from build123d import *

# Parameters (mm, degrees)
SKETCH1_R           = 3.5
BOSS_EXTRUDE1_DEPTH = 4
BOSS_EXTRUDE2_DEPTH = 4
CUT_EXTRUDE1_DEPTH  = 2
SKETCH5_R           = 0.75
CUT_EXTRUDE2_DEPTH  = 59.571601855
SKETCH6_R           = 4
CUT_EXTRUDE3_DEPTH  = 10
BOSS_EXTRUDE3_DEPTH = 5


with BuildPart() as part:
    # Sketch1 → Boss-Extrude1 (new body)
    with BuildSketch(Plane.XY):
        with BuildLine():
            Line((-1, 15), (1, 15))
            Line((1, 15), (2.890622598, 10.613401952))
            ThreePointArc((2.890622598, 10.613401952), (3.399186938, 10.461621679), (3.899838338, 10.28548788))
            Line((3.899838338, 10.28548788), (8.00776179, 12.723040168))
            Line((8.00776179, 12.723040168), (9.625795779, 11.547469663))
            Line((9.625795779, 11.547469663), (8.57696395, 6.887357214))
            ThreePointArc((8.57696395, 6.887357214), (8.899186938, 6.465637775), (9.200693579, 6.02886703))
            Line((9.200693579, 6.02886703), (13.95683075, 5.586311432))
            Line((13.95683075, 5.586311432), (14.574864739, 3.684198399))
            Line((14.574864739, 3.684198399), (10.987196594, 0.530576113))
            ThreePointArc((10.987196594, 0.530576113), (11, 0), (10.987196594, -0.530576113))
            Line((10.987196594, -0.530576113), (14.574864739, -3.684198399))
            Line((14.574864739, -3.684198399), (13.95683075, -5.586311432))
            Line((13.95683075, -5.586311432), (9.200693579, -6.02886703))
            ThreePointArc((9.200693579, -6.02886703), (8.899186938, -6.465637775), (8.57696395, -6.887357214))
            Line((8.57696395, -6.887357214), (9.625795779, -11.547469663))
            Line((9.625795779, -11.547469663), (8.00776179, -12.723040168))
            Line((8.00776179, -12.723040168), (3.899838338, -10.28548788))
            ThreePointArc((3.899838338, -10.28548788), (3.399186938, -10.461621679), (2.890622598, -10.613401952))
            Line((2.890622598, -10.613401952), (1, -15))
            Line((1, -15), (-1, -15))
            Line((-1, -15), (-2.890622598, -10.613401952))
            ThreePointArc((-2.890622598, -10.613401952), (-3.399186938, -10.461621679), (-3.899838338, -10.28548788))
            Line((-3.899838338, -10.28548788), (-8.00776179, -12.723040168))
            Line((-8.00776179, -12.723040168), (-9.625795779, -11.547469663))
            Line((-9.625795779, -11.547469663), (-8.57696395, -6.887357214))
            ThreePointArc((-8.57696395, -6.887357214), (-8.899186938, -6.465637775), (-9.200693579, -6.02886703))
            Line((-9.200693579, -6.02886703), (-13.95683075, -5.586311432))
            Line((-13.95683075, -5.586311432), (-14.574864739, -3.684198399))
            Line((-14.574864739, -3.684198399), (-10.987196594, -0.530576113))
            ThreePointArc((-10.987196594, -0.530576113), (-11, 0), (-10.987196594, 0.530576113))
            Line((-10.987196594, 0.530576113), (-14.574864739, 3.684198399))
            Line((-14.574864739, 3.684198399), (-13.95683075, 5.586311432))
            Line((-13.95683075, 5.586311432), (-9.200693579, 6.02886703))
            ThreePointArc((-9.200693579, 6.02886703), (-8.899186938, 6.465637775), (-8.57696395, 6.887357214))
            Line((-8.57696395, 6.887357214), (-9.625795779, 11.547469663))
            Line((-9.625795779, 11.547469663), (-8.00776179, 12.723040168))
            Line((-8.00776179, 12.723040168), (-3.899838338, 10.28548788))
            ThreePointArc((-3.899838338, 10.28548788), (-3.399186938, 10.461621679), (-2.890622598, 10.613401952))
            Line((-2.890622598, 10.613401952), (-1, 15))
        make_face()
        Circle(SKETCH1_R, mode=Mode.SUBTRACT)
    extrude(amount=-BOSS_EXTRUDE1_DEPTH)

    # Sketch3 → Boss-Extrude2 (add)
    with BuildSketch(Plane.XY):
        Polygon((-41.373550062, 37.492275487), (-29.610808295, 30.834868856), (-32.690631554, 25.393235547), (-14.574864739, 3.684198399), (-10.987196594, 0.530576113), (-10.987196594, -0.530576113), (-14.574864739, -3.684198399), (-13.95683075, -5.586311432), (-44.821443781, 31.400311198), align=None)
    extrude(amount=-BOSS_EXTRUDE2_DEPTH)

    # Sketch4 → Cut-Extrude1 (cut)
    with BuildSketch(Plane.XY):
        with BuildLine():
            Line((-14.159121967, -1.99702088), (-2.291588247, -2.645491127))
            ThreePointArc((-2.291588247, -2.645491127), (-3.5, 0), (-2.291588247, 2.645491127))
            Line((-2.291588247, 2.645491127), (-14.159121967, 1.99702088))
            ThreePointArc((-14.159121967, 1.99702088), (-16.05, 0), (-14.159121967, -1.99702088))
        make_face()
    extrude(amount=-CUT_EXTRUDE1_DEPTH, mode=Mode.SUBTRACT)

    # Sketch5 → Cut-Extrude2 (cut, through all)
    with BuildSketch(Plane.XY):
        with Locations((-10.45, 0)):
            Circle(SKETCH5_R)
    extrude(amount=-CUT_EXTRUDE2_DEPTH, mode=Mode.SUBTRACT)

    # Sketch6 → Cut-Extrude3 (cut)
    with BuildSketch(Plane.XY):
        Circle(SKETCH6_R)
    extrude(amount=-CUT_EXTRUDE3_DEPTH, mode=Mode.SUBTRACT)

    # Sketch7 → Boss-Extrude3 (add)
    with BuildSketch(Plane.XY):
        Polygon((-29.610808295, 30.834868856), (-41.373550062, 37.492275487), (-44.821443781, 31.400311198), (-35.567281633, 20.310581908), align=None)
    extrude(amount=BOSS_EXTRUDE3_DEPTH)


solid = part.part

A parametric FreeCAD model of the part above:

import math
import FreeCAD as App
import Part
import Sketcher
from FreeCAD import Vector
Q = App.Units.Quantity


def add_polygon(sketch, points):
    """Adds a closed chain of lines whose ends are joined by coincident constraints."""
    first, n = sketch.GeometryCount, len(points)
    for a, b in zip(points, points[1:] + points[:1]):
        sketch.addGeometry(Part.LineSegment(App.Vector(*a, 0), App.Vector(*b, 0)), False)
    for i in range(n):
        sketch.addConstraint(Sketcher.Constraint("Coincident", first + i, 2, first + (i + 1) % n, 1))

doc = App.newDocument("Part")
params = doc.addObject("Spreadsheet::Sheet", "Params")
for row, (alias, value) in enumerate([
    ("sketch1_diameter", "7 mm"),
    ("sketch1_radius", "11 mm"),
    ("sketch1_width", "2 mm"),
    ("sketch1_length", "2 mm"),
    ("pad1_length", "4 mm"),
    ("sketch2_length", "7 mm"),
    ("sketch2_length2", "2 mm"),
    ("pad2_length", "4 mm"),
    ("sketch3_radius", "2 mm"),
    ("sketch3_radius2", "3.5 mm"),
    ("pocket1_length", "2 mm"),
    ("sketch4_diameter", "1.5 mm"),
    ("sketch5_diameter", "8 mm"),
    ("pocket3_length", "10 mm"),
    ("sketch6_length", "7 mm"),
    ("pad3_length", "5 mm"),
], start=1):
    params.set(f"A{row}", alias)
    params.set(f"B{row}", "=" + value)
    params.setAlias(f"B{row}", alias)

body = doc.addObject("PartDesign::Body", "Body")

# Sketch on XY plane
sketch1 = doc.addObject("Sketcher::SketchObject", "Sketch")
body.addObject(sketch1)
sketch1.AttachmentSupport = (doc.XY_Plane, [""])
sketch1.MapMode = "FlatFace"
sketch1.addGeometry([
    Part.LineSegment(Vector(1, 15, 0), Vector(-1, 15, 0)),  # 0
    Part.LineSegment(Vector(-1, 15, 0), Vector(-2.890623, 10.613402, 0)),  # 1
    Part.ArcOfCircle(Part.Circle(Vector(0, 0, 0), Vector(0, 0, 1), 11), math.radians(105.235312), math.radians(110.764688)),  # 2
    Part.LineSegment(Vector(-3.899838, 10.285488, 0), Vector(-8.007762, 12.72304, 0)),  # 3
    Part.LineSegment(Vector(-8.007762, 12.72304, 0), Vector(-9.625796, 11.54747, 0)),  # 4
    Part.LineSegment(Vector(-9.625796, 11.54747, 0), Vector(-8.576964, 6.887357, 0)),  # 5
    Part.ArcOfCircle(Part.Circle(Vector(0, 0, 0), Vector(0, 0, 1), 11), math.radians(141.235312), math.radians(146.764688)),  # 6
    Part.LineSegment(Vector(-9.200694, 6.028867, 0), Vector(-13.956831, 5.586311, 0)),  # 7
    Part.LineSegment(Vector(-13.956831, 5.586311, 0), Vector(-14.574865, 3.684198, 0)),  # 8
    Part.LineSegment(Vector(-14.574865, 3.684198, 0), Vector(-10.987197, 0.530576, 0)),  # 9
    Part.ArcOfCircle(Part.Circle(Vector(0, 0, 0), Vector(0, 0, 1), 11), math.radians(177.235312), math.radians(182.764688)),  # 10
    Part.LineSegment(Vector(-10.987197, -0.530576, 0), Vector(-14.574865, -3.684198, 0)),  # 11
    Part.LineSegment(Vector(-14.574865, -3.684198, 0), Vector(-13.956831, -5.586311, 0)),  # 12
    Part.LineSegment(Vector(-13.956831, -5.586311, 0), Vector(-9.200694, -6.028867, 0)),  # 13
    Part.ArcOfCircle(Part.Circle(Vector(0, 0, 0), Vector(0, 0, 1), 11), math.radians(-146.764688), math.radians(-141.235312)),  # 14
    Part.LineSegment(Vector(-8.576964, -6.887357, 0), Vector(-9.625796, -11.54747, 0)),  # 15
    Part.LineSegment(Vector(-9.625796, -11.54747, 0), Vector(-8.007762, -12.72304, 0)),  # 16
    Part.LineSegment(Vector(-8.007762, -12.72304, 0), Vector(-3.899838, -10.285488, 0)),  # 17
    Part.ArcOfCircle(Part.Circle(Vector(0, 0, 0), Vector(0, 0, 1), 11), math.radians(-110.764688), math.radians(-105.235312)),  # 18
    Part.LineSegment(Vector(-2.890623, -10.613402, 0), Vector(-1, -15, 0)),  # 19
    Part.LineSegment(Vector(-1, -15, 0), Vector(1, -15, 0)),  # 20
    Part.LineSegment(Vector(1, -15, 0), Vector(2.890623, -10.613402, 0)),  # 21
    Part.ArcOfCircle(Part.Circle(Vector(0, 0, 0), Vector(0, 0, 1), 11), math.radians(-74.764688), math.radians(-69.235312)),  # 22
    Part.LineSegment(Vector(3.899838, -10.285488, 0), Vector(8.007762, -12.72304, 0)),  # 23
    Part.LineSegment(Vector(8.007762, -12.72304, 0), Vector(9.625796, -11.54747, 0)),  # 24
    Part.LineSegment(Vector(9.625796, -11.54747, 0), Vector(8.576964, -6.887357, 0)),  # 25
    Part.ArcOfCircle(Part.Circle(Vector(0, 0, 0), Vector(0, 0, 1), 11), math.radians(-38.764688), math.radians(-33.235312)),  # 26
    Part.LineSegment(Vector(9.200694, -6.028867, 0), Vector(13.956831, -5.586311, 0)),  # 27
    Part.LineSegment(Vector(13.956831, -5.586311, 0), Vector(14.574865, -3.684198, 0)),  # 28
    Part.LineSegment(Vector(14.574865, -3.684198, 0), Vector(10.987197, -0.530576, 0)),  # 29
    Part.ArcOfCircle(Part.Circle(Vector(0, 0, 0), Vector(0, 0, 1), 11), math.radians(-2.764688), math.radians(2.764688)),  # 30
    Part.LineSegment(Vector(10.987197, 0.530576, 0), Vector(14.574865, 3.684198, 0)),  # 31
    Part.LineSegment(Vector(14.574865, 3.684198, 0), Vector(13.956831, 5.586311, 0)),  # 32
    Part.LineSegment(Vector(13.956831, 5.586311, 0), Vector(9.200694, 6.028867, 0)),  # 33
    Part.ArcOfCircle(Part.Circle(Vector(0, 0, 0), Vector(0, 0, 1), 11), math.radians(33.235312), math.radians(38.764688)),  # 34
    Part.LineSegment(Vector(8.576964, 6.887357, 0), Vector(9.625796, 11.54747, 0)),  # 35
    Part.LineSegment(Vector(9.625796, 11.54747, 0), Vector(8.007762, 12.72304, 0)),  # 36
    Part.LineSegment(Vector(8.007762, 12.72304, 0), Vector(3.899838, 10.285488, 0)),  # 37
    Part.ArcOfCircle(Part.Circle(Vector(0, 0, 0), Vector(0, 0, 1), 11), math.radians(69.235312), math.radians(74.764688)),  # 38
    Part.LineSegment(Vector(2.890623, 10.613402, 0), Vector(1, 15, 0)),  # 39
    Part.Circle(Vector(0, 0, 0), Vector(0, 0, 1), 3.5),  # 40
], False)
sketch1.addConstraint([
    Sketcher.Constraint("Coincident", 0, 2, 1, 1),
    Sketcher.Constraint("Coincident", 1, 2, 2, 1),
    Sketcher.Constraint("Coincident", 2, 2, 3, 1),
    Sketcher.Constraint("Coincident", 3, 2, 4, 1),
    Sketcher.Constraint("Coincident", 4, 2, 5, 1),
    Sketcher.Constraint("Coincident", 5, 2, 6, 1),
    Sketcher.Constraint("Coincident", 6, 2, 7, 1),
    Sketcher.Constraint("Coincident", 7, 2, 8, 1),
    Sketcher.Constraint("Coincident", 8, 2, 9, 1),
    Sketcher.Constraint("Coincident", 9, 2, 10, 1),
    Sketcher.Constraint("Coincident", 10, 2, 11, 1),
    Sketcher.Constraint("Coincident", 11, 2, 12, 1),
    Sketcher.Constraint("Coincident", 12, 2, 13, 1),
    Sketcher.Constraint("Coincident", 13, 2, 14, 1),
    Sketcher.Constraint("Coincident", 14, 2, 15, 1),
    Sketcher.Constraint("Coincident", 15, 2, 16, 1),
    Sketcher.Constraint("Coincident", 16, 2, 17, 1),
    Sketcher.Constraint("Coincident", 17, 2, 18, 1),
    Sketcher.Constraint("Coincident", 18, 2, 19, 1),
    Sketcher.Constraint("Coincident", 19, 2, 20, 1),
    Sketcher.Constraint("Coincident", 20, 2, 21, 1),
    Sketcher.Constraint("Coincident", 21, 2, 22, 1),
    Sketcher.Constraint("Coincident", 22, 2, 23, 1),
    Sketcher.Constraint("Coincident", 23, 2, 24, 1),
    Sketcher.Constraint("Coincident", 24, 2, 25, 1),
    Sketcher.Constraint("Coincident", 25, 2, 26, 1),
    Sketcher.Constraint("Coincident", 26, 2, 27, 1),
    Sketcher.Constraint("Coincident", 27, 2, 28, 1),
    Sketcher.Constraint("Coincident", 28, 2, 29, 1),
    Sketcher.Constraint("Coincident", 29, 2, 30, 1),
    Sketcher.Constraint("Coincident", 30, 2, 31, 1),
    Sketcher.Constraint("Coincident", 31, 2, 32, 1),
    Sketcher.Constraint("Coincident", 32, 2, 33, 1),
    Sketcher.Constraint("Coincident", 33, 2, 34, 1),
    Sketcher.Constraint("Coincident", 34, 2, 35, 1),
    Sketcher.Constraint("Coincident", 35, 2, 36, 1),
    Sketcher.Constraint("Coincident", 36, 2, 37, 1),
    Sketcher.Constraint("Coincident", 37, 2, 38, 1),
    Sketcher.Constraint("Coincident", 38, 2, 39, 1),
    Sketcher.Constraint("Coincident", 39, 2, 0, 1),
    Sketcher.Constraint("Horizontal", 0),
    Sketcher.Constraint("Horizontal", 20),
    Sketcher.Constraint("Coincident", 2, 3, -1, 1),
    Sketcher.Constraint("Coincident", 6, 3, -1, 1),
    Sketcher.Constraint("Coincident", 10, 3, -1, 1),
    Sketcher.Constraint("Coincident", 14, 3, -1, 1),
    Sketcher.Constraint("Coincident", 18, 3, -1, 1),
    Sketcher.Constraint("Coincident", 22, 3, -1, 1),
    Sketcher.Constraint("Coincident", 26, 3, -1, 1),
    Sketcher.Constraint("Coincident", 30, 3, -1, 1),
    Sketcher.Constraint("Coincident", 34, 3, -1, 1),
    Sketcher.Constraint("Coincident", 38, 3, -1, 1),
    Sketcher.Constraint("Coincident", 40, 3, -1, 1),
    Sketcher.Constraint("Equal", 2, 6),
    Sketcher.Constraint("Equal", 6, 10),
    Sketcher.Constraint("Equal", 10, 14),
    Sketcher.Constraint("Equal", 14, 18),
    Sketcher.Constraint("Equal", 18, 22),
    Sketcher.Constraint("Equal", 22, 26),
    Sketcher.Constraint("Equal", 26, 30),
    Sketcher.Constraint("Equal", 30, 34),
    Sketcher.Constraint("Equal", 34, 38),
    Sketcher.Constraint("Symmetric", 0, 2, 20, 2, -1, 1),
    Sketcher.Constraint("Symmetric", 3, 2, 23, 2, -1, 1),
    Sketcher.Constraint("Symmetric", 4, 2, 24, 2, -1, 1),
    Sketcher.Constraint("Symmetric", 7, 2, 27, 2, -1, 1),
    Sketcher.Constraint("Symmetric", 8, 2, 28, 2, -1, 1),
    Sketcher.Constraint("Symmetric", 11, 2, 31, 2, -1, 1),
    Sketcher.Constraint("Symmetric", 12, 2, 32, 2, -1, 1),
    Sketcher.Constraint("Symmetric", 15, 2, 35, 2, -1, 1),
    Sketcher.Constraint("Symmetric", 16, 2, 36, 2, -1, 1),
    Sketcher.Constraint("Symmetric", 16, 2, 23, 2, -2),
    Sketcher.Constraint("Symmetric", 15, 2, 24, 2, -2),
    Sketcher.Constraint("Symmetric", 12, 2, 27, 2, -2),
    Sketcher.Constraint("Symmetric", 11, 2, 28, 2, -2),
    Sketcher.Constraint("Parallel", 1, 21),
    Sketcher.Constraint("Parallel", 3, 23),
    Sketcher.Constraint("Parallel", 5, 25),
    Sketcher.Constraint("Parallel", 7, 27),
    Sketcher.Constraint("Parallel", 9, 29),
    Sketcher.Constraint("Parallel", 11, 31),
    Sketcher.Constraint("Parallel", 13, 33),
    Sketcher.Constraint("Parallel", 15, 35),
    Sketcher.Constraint("Parallel", 17, 37),
    Sketcher.Constraint("Parallel", 19, 39),
    Sketcher.Constraint("Horizontal", 18, 2, 21, 2),
    Sketcher.Constraint("Horizontal", 17, 2, 22, 2),
    Sketcher.Constraint("Horizontal", 14, 2, 25, 2),
    Sketcher.Constraint("Horizontal", 13, 2, 26, 2),
    Sketcher.Constraint("Horizontal", 10, 2, 29, 2),
    Sketcher.Constraint("Horizontal", 1, 2, 38, 2),
    Sketcher.Constraint("Vertical", 0, 2, 19, 2),
    Sketcher.Constraint("Equal", 1, 3),
    Sketcher.Constraint("Equal", 3, 5),
    Sketcher.Constraint("Equal", 5, 7),
    Sketcher.Constraint("Equal", 4, 8),
    Sketcher.Constraint("Equal", 7, 9),
    Sketcher.Constraint("Diameter", 40, Q("7 mm")),
    Sketcher.Constraint("Radius", 2, Q("11 mm")),
    Sketcher.Constraint("DistanceX", 0, 2, 0, 1, Q("2 mm")),
    Sketcher.Constraint("Angle", 4, Q("-144 deg")),
    Sketcher.Constraint("Angle", 8, Q("-108 deg")),
    Sketcher.Constraint("Distance", 4, Q("2 mm")),
    Sketcher.Constraint("DistanceY", -1, 1, 0, 2, Q("15 mm")),
    Sketcher.Constraint("DistanceY", -1, 1, 1, 2, Q("10.613402 mm")),
    Sketcher.Constraint("DistanceY", -1, 1, 8, 2, Q("3.684198 mm")),
    Sketcher.Constraint("DistanceX", 8, 2, 5, 2, Q("5.997901 mm")),
    Sketcher.Constraint("DistanceX", 10, 2, 15, 2, Q("1.361401 mm")),
    Sketcher.Constraint("DistanceX", 2, 2, -1, 1, Q("3.899838 mm")),
])
sketch1.setExpression("Constraints[97]", "Params.sketch1_diameter")
sketch1.setExpression("Constraints[98]", "Params.sketch1_radius")
sketch1.setExpression("Constraints[99]", "Params.sketch1_width")
sketch1.setExpression("Constraints[102]", "Params.sketch1_length")
pad1 = doc.addObject("PartDesign::Pad", "Pad")
body.addObject(pad1)
pad1.Profile = sketch1
pad1.setExpression("Length", "Params.pad1_length")
pad1.Reversed = True

# Sketch on XY plane
sketch2 = doc.addObject("Sketcher::SketchObject", "Sketch001")
body.addObject(sketch2)
sketch2.AttachmentSupport = (doc.XY_Plane, [""])
sketch2.MapMode = "FlatFace"
add_polygon(sketch2, [(-29.610808, 30.834869), (-41.37355, 37.492275), (-44.821444, 31.400311), (-13.956831, -5.586311), (-14.574865, -3.684198), (-10.987197, -0.530576), (-10.987197, 0.530576), (-14.574865, 3.684198), (-32.690632, 25.393236)])  # lines 0-8
sketch2.addConstraint([
    Sketcher.Constraint("Vertical", 5),
    Sketcher.Constraint("Symmetric", 3, 2, 6, 2, -1),
    Sketcher.Constraint("Perpendicular", 0, 1),
    Sketcher.Constraint("Parallel", 2, 7),
    Sketcher.Constraint("Parallel", 1, 8),
    Sketcher.Constraint("Equal", 4, 6),
    Sketcher.Constraint("Angle", 3, Q("108 deg")),
    Sketcher.Constraint("Distance", 1, Q("7 mm")),
    Sketcher.Constraint("Distance", 3, Q("2 mm")),
    Sketcher.Constraint("DistanceY", 3, 2, -1, 1, Q("3.684198 mm")),
    Sketcher.Constraint("DistanceY", 5, 2, 0, 2, Q("36.961699 mm")),
    Sketcher.Constraint("DistanceY", 5, 1, 5, 2, Q("1.061152 mm")),
    Sketcher.Constraint("DistanceX", 0, 2, -1, 1, Q("41.37355 mm")),
    Sketcher.Constraint("DistanceY", -1, 1, 1, 2, Q("31.400311 mm")),
    Sketcher.Constraint("DistanceX", 2, 2, -1, 1, Q("13.956831 mm")),
    Sketcher.Constraint("DistanceX", 7, 2, -1, 1, Q("32.690632 mm")),
    Sketcher.Constraint("DistanceX", 3, 2, 4, 2, Q("3.587668 mm")),
])
sketch2.setExpression("Constraints[16]", "Params.sketch2_length")
sketch2.setExpression("Constraints[17]", "Params.sketch2_length2")
pad2 = doc.addObject("PartDesign::Pad", "Pad001")
body.addObject(pad2)
pad2.Profile = sketch2
pad2.setExpression("Length", "Params.pad2_length")
pad2.Reversed = True

# Sketch on XY plane
sketch3 = doc.addObject("Sketcher::SketchObject", "Sketch002")
body.addObject(sketch3)
sketch3.AttachmentSupport = (doc.XY_Plane, [""])
sketch3.MapMode = "FlatFace"
sketch3.addGeometry([
    Part.LineSegment(Vector(-14.159122, -1.997021, 0), Vector(-2.291588, -2.645491, 0)),
    Part.ArcOfCircle(Part.Circle(Vector(0, 0, 0), Vector(0, 0, 1), 3.5), math.radians(130.8999), math.radians(229.1001)),
    Part.LineSegment(Vector(-2.291588, 2.645491, 0), Vector(-14.159122, 1.997021, 0)),
    Part.ArcOfCircle(Part.Circle(Vector(-14.05, 0, 0), Vector(0, 0, 1), 2), math.radians(93.127667), math.radians(266.872333)),
], False)
sketch3.addConstraint([
    Sketcher.Constraint("Coincident", 0, 2, 1, 2),
    Sketcher.Constraint("Coincident", 1, 1, 2, 1),
    Sketcher.Constraint("Tangent", 2, 2, 3, 1),
    Sketcher.Constraint("Tangent", 3, 2, 0, 1),
    Sketcher.Constraint("Coincident", 1, 3, -1, 1),
    Sketcher.Constraint("Symmetric", 2, 2, 3, 2, -1),
    Sketcher.Constraint("Radius", 3, Q("2 mm")),
    Sketcher.Constraint("Radius", 1, Q("3.5 mm")),
    Sketcher.Constraint("DistanceX", 3, 3, -1, 1, Q("14.05 mm")),
    Sketcher.Constraint("DistanceX", 0, 2, -1, 1, Q("2.291588 mm")),
])
sketch3.setExpression("Constraints[6]", "Params.sketch3_radius")
sketch3.setExpression("Constraints[7]", "Params.sketch3_radius2")
pocket1 = doc.addObject("PartDesign::Pocket", "Pocket")
body.addObject(pocket1)
pocket1.Profile = sketch3
pocket1.setExpression("Length", "Params.pocket1_length")

# Sketch on XY plane
sketch4 = doc.addObject("Sketcher::SketchObject", "Sketch003")
body.addObject(sketch4)
sketch4.AttachmentSupport = (doc.XY_Plane, [""])
sketch4.MapMode = "FlatFace"
sketch4.addGeometry(Part.Circle(Vector(-10.45, 0, 0), Vector(0, 0, 1), 0.75), False)
sketch4.addConstraint([
    Sketcher.Constraint("PointOnObject", 0, 3, -1),
    Sketcher.Constraint("Diameter", 0, Q("1.5 mm")),
    Sketcher.Constraint("DistanceX", 0, 3, -1, 1, Q("10.45 mm")),
])
sketch4.setExpression("Constraints[1]", "Params.sketch4_diameter")
pocket2 = doc.addObject("PartDesign::Pocket", "Pocket001")
body.addObject(pocket2)
pocket2.Profile = sketch4
pocket2.Type = "ThroughAll"

# Sketch on XY plane
sketch5 = doc.addObject("Sketcher::SketchObject", "Sketch004")
body.addObject(sketch5)
sketch5.AttachmentSupport = (doc.XY_Plane, [""])
sketch5.MapMode = "FlatFace"
sketch5.addGeometry(Part.Circle(Vector(0, 0, 0), Vector(0, 0, 1), 4), False)
sketch5.addConstraint([
    Sketcher.Constraint("Coincident", 0, 3, -1, 1),
    Sketcher.Constraint("Diameter", 0, Q("8 mm")),
])
sketch5.setExpression("Constraints[1]", "Params.sketch5_diameter")
pocket3 = doc.addObject("PartDesign::Pocket", "Pocket002")
body.addObject(pocket3)
pocket3.Profile = sketch5
pocket3.setExpression("Length", "Params.pocket3_length")

# Sketch on XY plane
sketch6 = doc.addObject("Sketcher::SketchObject", "Sketch005")
body.addObject(sketch6)
sketch6.AttachmentSupport = (doc.XY_Plane, [""])
sketch6.MapMode = "FlatFace"
add_polygon(sketch6, [(-29.610808, 30.834869), (-41.37355, 37.492275), (-44.821444, 31.400311), (-35.567282, 20.310582)])  # lines 0-3
sketch6.addConstraint([
    Sketcher.Constraint("Perpendicular", 0, 1),
    Sketcher.Constraint("Parallel", 1, 3),
    Sketcher.Constraint("Distance", 1, Q("7 mm")),
    Sketcher.Constraint("Distance", 2, Q("14.44374 mm")),
    Sketcher.Constraint("Distance", 3, Q("12.092981 mm")),
    Sketcher.Constraint("DistanceX", 0, 2, -1, 1, Q("41.37355 mm")),
    Sketcher.Constraint("DistanceY", -1, 1, 1, 2, Q("31.400311 mm")),
    Sketcher.Constraint("DistanceX", 2, 2, -1, 1, Q("35.567282 mm")),
])
sketch6.setExpression("Constraints[6]", "Params.sketch6_length")
pad3 = doc.addObject("PartDesign::Pad", "Pad002")
body.addObject(pad3)
pad3.Profile = sketch6
pad3.setExpression("Length", "Params.pad3_length")

doc.recompute()
